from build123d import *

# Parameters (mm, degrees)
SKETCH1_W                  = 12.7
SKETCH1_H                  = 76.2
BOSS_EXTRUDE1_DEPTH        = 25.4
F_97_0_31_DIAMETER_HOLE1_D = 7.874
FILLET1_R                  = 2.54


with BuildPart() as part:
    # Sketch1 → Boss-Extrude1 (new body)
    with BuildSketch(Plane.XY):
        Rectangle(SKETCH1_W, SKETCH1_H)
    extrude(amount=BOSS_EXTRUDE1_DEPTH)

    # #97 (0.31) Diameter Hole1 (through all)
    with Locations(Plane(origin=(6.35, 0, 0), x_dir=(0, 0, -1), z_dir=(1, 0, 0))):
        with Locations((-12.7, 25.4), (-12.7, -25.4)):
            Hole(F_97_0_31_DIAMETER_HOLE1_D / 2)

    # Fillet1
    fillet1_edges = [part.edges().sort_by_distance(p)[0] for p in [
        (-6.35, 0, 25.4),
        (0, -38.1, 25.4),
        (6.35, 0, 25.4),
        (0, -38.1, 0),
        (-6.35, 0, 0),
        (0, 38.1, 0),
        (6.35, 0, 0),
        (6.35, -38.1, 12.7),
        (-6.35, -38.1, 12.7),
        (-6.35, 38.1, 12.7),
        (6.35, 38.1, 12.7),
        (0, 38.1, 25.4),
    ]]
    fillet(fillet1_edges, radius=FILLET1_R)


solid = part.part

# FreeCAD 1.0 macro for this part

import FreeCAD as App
import Part
import Sketcher
from FreeCAD import Vector
Q = App.Units.Quantity


def edges_at(feature, points):
    """Names of the edges that pass closest to the given points."""
    edges = feature.Shape.Edges
    near = lambda p: min(range(len(edges)), key=lambda i: edges[i].distToShape(Part.Vertex(*p))[0])
    return sorted({f"Edge{near(p) + 1}" for p in points})


def add_polygon(sketch, points):
    """Adds a closed chain of lines whose ends are joined by coincident constraints."""
    first, n = sketch.GeometryCount, len(points)
    for a, b in zip(points, points[1:] + points[:1]):
        sketch.addGeometry(Part.LineSegment(App.Vector(*a, 0), App.Vector(*b, 0)), False)
    for i in range(n):
        sketch.addConstraint(Sketcher.Constraint("Coincident", first + i, 2, first + (i + 1) % n, 1))

doc = App.newDocument("Part")
body = doc.addObject("PartDesign::Body", "Body")

sketch1 = doc.addObject("Sketcher::SketchObject", "Sketch")
body.addObject(sketch1)
sketch1.AttachmentSupport = (doc.XY_Plane, [""])
sketch1.MapMode = "FlatFace"
add_polygon(sketch1, [(-6, 38), (-6, -38), (6, -38), (6, 38)])
sketch1.addConstraint(Sketcher.Constraint("Vertical", 0))
sketch1.addConstraint(Sketcher.Constraint("Horizontal", 1))
sketch1.addConstraint(Sketcher.Constraint("Vertical", 2))
sketch1.addConstraint(Sketcher.Constraint("Horizontal", 3))
sketch1.addConstraint(Sketcher.Constraint("Symmetric", 0, 2, 2, 2, -1, 1))
sketch1.addConstraint(Sketcher.Constraint("DistanceY", 0, 2, 0, 1, Q("3 in")))
sketch1.addConstraint(Sketcher.Constraint("DistanceX", 1, 1, 1, 2, Q("0.5 in")))
pad1 = doc.addObject("PartDesign::Pad", "Pad")
body.addObject(pad1)
pad1.Profile = sketch1
pad1.Length = Q("1 in")

sketch2 = doc.addObject("Sketcher::SketchObject", "Sketch001")
body.addObject(sketch2)
sketch2.AttachmentSupport = (doc.YZ_Plane, [""])
sketch2.MapMode = "FlatFace"
sketch2.AttachmentOffset = App.Placement(Vector(0, 0, 0.25 * 25.4), App.Rotation())
sketch2.addGeometry(Part.Circle(Vector(25.4, 12.7, 0), Vector(0, 0, 1), 3.9), False)
sketch2.addGeometry(Part.Circle(Vector(-25.4, 12.7, 0), Vector(0, 0, 1), 3.9), False)
sketch2.addConstraint(Sketcher.Constraint("Equal", 0, 1))
sketch2.addConstraint(Sketcher.Constraint("Symmetric", 0, 3, 1, 3, -2))
sketch2.addConstraint(Sketcher.Constraint("Diameter", 0, Q("0.31 in")))
sketch2.addConstraint(Sketcher.Constraint("DistanceX", -1, 1, 0, 3, Q("1 in")))
sketch2.addConstraint(Sketcher.Constraint("DistanceY", -1, 1, 0, 3, Q("0.5 in")))
doc.recompute()
hole = doc.addObject("PartDesign::Hole", "Hole")
body.addObject(hole)
hole.Profile = sketch2
hole.ThreadType = "None"
hole.Diameter = Q("0.31 in")
hole.DepthType = "ThroughAll"
doc.recompute()

fillet = doc.addObject("PartDesign::Fillet", "Fillet")
body.addObject(fillet)
fillet.Base = (hole, edges_at(hole, [
    (-6.35, 0, 25.4),
    (0, -38.1, 25.4),
    (6.35, 0, 25.4),
    (0, -38.1, 0),
    (-6.35, 0, 0),
    (0, 38.1, 0),
    (6.35, 0, 0),
    (6.35, -38.1, 12.7),
    (-6.35, -38.1, 12.7),
    (-6.35, 38.1, 12.7),
    (6.35, 38.1, 12.7),
    (0, 38.1, 25.4),
]))
fillet.Radius = Q("0.1 in")

doc.recompute()
